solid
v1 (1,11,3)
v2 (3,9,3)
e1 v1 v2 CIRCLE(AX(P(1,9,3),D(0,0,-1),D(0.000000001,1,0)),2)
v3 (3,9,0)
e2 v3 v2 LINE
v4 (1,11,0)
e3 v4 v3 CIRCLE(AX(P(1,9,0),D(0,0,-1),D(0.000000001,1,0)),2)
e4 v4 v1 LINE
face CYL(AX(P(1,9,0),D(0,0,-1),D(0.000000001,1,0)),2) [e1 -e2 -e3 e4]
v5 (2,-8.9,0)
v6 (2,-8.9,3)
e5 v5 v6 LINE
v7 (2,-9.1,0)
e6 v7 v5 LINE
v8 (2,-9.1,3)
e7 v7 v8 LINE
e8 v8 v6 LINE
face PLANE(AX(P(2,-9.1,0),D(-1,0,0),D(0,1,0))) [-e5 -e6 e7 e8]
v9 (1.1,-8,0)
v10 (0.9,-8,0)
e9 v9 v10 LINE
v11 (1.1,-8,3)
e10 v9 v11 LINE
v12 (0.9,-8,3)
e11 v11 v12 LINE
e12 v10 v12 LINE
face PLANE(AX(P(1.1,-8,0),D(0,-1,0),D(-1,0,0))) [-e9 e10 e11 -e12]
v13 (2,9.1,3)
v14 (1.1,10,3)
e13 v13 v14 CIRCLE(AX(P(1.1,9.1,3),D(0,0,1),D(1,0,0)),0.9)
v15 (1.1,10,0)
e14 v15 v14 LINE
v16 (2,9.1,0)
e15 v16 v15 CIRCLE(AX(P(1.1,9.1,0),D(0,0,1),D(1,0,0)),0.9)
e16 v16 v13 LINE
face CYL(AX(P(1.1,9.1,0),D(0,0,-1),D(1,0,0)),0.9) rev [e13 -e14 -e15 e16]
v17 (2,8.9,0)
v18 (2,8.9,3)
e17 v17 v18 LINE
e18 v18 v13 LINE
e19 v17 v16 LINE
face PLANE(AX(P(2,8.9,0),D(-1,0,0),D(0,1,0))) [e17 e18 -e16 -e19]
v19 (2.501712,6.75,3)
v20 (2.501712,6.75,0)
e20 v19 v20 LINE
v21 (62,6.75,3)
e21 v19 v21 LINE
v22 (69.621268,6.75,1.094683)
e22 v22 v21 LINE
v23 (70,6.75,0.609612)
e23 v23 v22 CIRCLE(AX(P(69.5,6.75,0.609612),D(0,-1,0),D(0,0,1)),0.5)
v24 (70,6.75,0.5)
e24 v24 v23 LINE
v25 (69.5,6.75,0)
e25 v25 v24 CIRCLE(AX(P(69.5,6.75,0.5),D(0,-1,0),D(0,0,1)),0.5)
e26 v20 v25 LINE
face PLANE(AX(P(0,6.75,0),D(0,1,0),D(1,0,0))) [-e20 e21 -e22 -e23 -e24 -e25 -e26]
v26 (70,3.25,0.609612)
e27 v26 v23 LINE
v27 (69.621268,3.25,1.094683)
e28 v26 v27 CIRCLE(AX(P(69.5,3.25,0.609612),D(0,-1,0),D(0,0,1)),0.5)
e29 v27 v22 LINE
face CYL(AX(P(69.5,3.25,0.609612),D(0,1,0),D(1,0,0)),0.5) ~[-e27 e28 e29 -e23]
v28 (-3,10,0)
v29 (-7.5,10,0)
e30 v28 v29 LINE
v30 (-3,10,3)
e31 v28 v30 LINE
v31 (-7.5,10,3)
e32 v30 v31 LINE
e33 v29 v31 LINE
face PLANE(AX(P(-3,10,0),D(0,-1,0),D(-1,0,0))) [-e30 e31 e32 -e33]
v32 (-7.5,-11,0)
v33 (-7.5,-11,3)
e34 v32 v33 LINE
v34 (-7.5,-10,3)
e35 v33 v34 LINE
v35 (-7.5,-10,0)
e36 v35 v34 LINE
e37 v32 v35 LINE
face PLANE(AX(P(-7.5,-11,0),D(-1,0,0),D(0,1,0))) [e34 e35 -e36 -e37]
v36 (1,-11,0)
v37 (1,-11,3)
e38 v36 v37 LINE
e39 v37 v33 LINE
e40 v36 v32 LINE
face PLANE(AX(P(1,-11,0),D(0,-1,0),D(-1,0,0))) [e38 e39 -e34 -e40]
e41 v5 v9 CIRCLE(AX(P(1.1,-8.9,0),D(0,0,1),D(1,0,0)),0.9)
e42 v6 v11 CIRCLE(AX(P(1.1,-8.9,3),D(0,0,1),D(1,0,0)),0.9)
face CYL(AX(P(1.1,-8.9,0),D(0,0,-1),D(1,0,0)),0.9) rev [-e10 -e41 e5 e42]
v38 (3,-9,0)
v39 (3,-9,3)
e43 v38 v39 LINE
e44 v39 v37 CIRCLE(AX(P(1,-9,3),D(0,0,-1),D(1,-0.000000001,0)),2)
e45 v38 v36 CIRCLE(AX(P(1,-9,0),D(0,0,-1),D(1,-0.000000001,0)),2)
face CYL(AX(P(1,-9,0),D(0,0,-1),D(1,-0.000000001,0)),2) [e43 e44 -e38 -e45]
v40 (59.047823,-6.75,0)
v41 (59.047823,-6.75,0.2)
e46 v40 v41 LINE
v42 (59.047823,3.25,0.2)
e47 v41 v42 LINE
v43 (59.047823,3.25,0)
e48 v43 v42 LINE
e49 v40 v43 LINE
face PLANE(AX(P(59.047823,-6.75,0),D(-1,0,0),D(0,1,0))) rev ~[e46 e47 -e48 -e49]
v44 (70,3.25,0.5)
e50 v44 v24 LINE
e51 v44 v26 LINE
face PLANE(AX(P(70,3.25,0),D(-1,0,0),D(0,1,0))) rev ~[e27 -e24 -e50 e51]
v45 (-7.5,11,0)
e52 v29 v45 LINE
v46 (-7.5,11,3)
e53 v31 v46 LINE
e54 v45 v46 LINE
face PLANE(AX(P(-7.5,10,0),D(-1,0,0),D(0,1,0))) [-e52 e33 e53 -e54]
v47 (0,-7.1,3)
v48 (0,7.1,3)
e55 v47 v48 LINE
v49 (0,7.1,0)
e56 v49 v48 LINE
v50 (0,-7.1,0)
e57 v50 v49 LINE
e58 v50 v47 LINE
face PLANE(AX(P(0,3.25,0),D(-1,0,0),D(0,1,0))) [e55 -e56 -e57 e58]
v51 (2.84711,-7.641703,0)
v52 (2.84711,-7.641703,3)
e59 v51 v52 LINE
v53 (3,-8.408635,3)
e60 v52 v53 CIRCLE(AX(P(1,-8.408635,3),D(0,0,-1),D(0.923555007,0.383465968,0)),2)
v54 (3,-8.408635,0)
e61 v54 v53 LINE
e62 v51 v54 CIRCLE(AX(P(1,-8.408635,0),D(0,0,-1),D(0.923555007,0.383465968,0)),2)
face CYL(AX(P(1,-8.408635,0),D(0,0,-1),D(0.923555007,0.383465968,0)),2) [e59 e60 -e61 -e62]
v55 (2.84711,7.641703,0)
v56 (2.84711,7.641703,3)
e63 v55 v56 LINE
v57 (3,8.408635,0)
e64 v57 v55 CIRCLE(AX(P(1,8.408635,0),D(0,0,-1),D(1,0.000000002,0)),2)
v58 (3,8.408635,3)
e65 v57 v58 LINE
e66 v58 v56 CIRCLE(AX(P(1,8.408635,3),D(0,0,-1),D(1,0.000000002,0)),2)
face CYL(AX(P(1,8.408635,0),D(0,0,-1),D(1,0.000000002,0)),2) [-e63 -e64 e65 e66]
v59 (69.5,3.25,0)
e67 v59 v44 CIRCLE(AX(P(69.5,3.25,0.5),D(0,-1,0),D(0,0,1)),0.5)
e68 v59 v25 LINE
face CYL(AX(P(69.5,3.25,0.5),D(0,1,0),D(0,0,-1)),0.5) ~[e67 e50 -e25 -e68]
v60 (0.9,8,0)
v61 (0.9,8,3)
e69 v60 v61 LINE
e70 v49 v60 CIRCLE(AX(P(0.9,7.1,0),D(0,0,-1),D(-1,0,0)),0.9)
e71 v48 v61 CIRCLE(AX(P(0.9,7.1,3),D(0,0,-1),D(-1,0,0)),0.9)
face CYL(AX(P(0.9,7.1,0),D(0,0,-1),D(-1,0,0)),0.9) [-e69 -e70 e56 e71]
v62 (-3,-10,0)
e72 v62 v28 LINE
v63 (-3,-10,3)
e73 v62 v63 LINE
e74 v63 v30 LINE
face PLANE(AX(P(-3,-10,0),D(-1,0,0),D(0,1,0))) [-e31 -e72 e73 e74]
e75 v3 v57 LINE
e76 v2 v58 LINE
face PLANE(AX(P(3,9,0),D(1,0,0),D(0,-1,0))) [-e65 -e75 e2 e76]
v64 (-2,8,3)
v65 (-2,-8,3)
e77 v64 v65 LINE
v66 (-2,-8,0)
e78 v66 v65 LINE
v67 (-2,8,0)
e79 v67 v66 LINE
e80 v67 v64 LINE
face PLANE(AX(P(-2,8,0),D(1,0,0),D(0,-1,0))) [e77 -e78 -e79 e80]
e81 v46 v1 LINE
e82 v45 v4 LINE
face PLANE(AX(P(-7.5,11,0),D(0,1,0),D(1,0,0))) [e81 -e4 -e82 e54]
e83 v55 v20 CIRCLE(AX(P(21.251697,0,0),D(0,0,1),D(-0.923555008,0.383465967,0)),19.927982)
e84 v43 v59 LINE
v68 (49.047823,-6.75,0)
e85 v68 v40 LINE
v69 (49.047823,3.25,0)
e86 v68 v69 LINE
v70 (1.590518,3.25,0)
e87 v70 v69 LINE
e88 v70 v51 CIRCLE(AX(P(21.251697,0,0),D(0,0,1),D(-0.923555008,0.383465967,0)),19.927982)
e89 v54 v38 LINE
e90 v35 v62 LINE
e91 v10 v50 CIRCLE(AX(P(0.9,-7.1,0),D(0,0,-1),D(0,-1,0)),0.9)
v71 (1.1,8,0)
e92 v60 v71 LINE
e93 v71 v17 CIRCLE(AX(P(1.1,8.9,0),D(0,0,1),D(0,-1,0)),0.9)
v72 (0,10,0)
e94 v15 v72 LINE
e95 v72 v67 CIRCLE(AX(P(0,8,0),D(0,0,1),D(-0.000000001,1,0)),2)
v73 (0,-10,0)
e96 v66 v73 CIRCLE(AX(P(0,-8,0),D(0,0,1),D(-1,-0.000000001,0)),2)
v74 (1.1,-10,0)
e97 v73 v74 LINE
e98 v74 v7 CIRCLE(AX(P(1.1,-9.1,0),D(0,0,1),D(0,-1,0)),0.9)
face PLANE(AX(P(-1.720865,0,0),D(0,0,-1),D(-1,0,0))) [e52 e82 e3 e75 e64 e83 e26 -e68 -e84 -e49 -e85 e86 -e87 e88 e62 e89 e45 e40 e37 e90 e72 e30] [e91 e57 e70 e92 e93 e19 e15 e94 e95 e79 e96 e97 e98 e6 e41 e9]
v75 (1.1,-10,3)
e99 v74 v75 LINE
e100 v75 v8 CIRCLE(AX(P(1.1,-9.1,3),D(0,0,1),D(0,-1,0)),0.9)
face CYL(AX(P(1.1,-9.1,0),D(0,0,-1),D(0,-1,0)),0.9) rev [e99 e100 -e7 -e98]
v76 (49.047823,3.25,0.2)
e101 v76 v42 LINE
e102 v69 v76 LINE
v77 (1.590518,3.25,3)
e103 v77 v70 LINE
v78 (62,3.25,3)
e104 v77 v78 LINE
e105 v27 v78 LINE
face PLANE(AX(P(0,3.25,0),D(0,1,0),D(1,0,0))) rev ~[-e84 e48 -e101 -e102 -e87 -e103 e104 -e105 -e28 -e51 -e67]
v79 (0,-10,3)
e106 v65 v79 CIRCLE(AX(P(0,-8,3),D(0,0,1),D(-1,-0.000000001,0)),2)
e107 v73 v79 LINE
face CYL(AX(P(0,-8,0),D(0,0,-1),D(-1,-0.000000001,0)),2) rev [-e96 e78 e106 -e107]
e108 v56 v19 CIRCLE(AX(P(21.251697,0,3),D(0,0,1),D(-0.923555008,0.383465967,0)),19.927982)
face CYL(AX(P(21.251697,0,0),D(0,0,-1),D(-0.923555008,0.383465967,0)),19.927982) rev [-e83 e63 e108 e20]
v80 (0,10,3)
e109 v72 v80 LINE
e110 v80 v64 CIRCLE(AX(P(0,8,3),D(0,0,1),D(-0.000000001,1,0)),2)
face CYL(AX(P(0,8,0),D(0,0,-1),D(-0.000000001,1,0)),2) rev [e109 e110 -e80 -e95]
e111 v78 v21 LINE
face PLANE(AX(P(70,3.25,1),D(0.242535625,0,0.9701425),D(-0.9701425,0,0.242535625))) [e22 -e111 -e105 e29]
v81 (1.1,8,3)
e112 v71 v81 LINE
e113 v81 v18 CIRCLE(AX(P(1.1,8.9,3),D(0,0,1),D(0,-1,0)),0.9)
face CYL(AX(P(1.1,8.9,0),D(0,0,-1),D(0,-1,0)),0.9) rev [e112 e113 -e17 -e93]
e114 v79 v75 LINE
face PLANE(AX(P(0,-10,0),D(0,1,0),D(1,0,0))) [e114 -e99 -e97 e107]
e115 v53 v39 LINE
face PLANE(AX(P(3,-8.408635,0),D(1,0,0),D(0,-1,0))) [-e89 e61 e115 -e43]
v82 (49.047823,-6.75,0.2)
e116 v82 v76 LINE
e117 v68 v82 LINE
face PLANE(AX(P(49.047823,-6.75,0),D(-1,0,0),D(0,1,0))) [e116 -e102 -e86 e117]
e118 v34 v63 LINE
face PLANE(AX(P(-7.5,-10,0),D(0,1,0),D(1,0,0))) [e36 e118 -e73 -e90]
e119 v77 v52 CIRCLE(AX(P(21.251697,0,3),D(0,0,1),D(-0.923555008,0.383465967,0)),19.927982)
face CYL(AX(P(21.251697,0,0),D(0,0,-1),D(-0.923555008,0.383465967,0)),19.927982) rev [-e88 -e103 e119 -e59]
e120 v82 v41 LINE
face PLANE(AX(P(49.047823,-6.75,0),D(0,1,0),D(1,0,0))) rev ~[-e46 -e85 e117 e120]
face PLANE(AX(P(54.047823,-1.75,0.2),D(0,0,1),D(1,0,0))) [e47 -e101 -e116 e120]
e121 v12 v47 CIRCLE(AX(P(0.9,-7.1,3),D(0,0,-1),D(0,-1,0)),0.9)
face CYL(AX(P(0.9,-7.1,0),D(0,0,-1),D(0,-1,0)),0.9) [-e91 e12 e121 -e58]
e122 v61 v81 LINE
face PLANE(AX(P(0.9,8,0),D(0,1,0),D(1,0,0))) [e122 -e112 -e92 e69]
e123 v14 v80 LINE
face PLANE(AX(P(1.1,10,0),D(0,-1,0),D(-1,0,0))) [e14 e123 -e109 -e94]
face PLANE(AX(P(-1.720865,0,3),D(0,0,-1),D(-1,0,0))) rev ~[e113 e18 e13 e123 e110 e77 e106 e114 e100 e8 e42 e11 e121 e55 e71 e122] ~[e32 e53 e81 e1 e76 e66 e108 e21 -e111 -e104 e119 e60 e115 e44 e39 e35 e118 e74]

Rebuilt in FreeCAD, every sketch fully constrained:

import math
import FreeCAD as App
import Part
import Sketcher


def edges_at(feature, points):
    """Names of the edges that pass closest to the given points."""
    edges = feature.Shape.Edges
    near = lambda p: min(range(len(edges)), key=lambda i: edges[i].distToShape(Part.Vertex(*p))[0])
    return sorted({f"Edge{near(p) + 1}" for p in points})


def add_polygon(sketch, points):
    """Adds a closed chain of lines whose ends are joined by coincident constraints."""
    first, n = sketch.GeometryCount, len(points)
    for a, b in zip(points, points[1:] + points[:1]):
        sketch.addGeometry(Part.LineSegment(App.Vector(*a, 0), App.Vector(*b, 0)), False)
    for i in range(n):
        sketch.addConstraint(Sketcher.Constraint("Coincident", first + i, 2, first + (i + 1) % n, 1))

doc = App.newDocument("Part")
params = doc.addObject("Spreadsheet::Sheet", "Params")
for row, (alias, value) in enumerate([
    ("sketch1_radius", "2 mm"),
    ("sketch1_radius2", "0.9 mm"),
    ("sketch1_height", "1 mm"),
    ("sketch1_height2", "20 mm"),
    ("sketch1_width", "8.5 mm"),
    ("pad1_length", "3 mm"),
    ("sketch2_width", "70 mm"),
    ("sketch2_height", "3.5 mm"),
    ("pad2_length", "3 mm"),
    ("sketch3_width", "8 mm"),
    ("sketch3_height", "2 mm"),
    ("pocket1_length", "3.5 mm"),
    ("fillet_radius", "0.5 mm"),
    ("sketch4_width", "10 mm"),
    ("pad3_length", "0.2 mm"),
], start=1):
    params.set(f"A{row}", alias)
    params.set(f"B{row}", "=" + value)
    params.setAlias(f"B{row}", alias)

body = doc.addObject("PartDesign::Body", "Body")

# Sketch on XY plane
sketch1 = doc.addObject("Sketcher::SketchObject", "Sketch")
body.addObject(sketch1)
sketch1.AttachmentSupport = (doc.XY_Plane, [""])
sketch1.MapMode = "FlatFace"
sketch1.addGeometry([
    Part.LineSegment(App.Vector(-7.5, -11, 0), App.Vector(1, -11, 0)),  # 0
    Part.ArcOfCircle(Part.Circle(App.Vector(1, -9, 0), App.Vector(0, 0, 1), 2), math.radians(-90), math.radians(0)),  # 1
    Part.LineSegment(App.Vector(3, -9, 0), App.Vector(3, -8.41, 0)),  # 2
    Part.ArcOfCircle(Part.Circle(App.Vector(1, -8.41, 0), App.Vector(0, 0, 1), 2), math.radians(0), math.radians(23)),  # 3
    Part.ArcOfCircle(Part.Circle(App.Vector(21.25, 0, 0), App.Vector(0, 0, 1), 19.93), math.radians(157), math.radians(203)),  # 4
    Part.ArcOfCircle(Part.Circle(App.Vector(1, 8.41, 0), App.Vector(0, 0, 1), 2), math.radians(-23), math.radians(0)),  # 5
    Part.LineSegment(App.Vector(3, 8.41, 0), App.Vector(3, 9, 0)),  # 6
    Part.ArcOfCircle(Part.Circle(App.Vector(1, 9, 0), App.Vector(0, 0, 1), 2), math.radians(0), math.radians(90)),  # 7
    Part.LineSegment(App.Vector(1, 11, 0), App.Vector(-7.5, 11, 0)),  # 8
    Part.LineSegment(App.Vector(-7.5, 11, 0), App.Vector(-7.5, 10, 0)),  # 9
    Part.LineSegment(App.Vector(-7.5, 10, 0), App.Vector(-3, 10, 0)),  # 10
    Part.LineSegment(App.Vector(-3, 10, 0), App.Vector(-3, -10, 0)),  # 11
    Part.LineSegment(App.Vector(-3, -10, 0), App.Vector(-7.5, -10, 0)),  # 12
    Part.LineSegment(App.Vector(-7.5, -10, 0), App.Vector(-7.5, -11, 0)),  # 13
    Part.ArcOfCircle(Part.Circle(App.Vector(1.1, 8.9, 0), App.Vector(0, 0, 1), 0.9), math.radians(-90), math.radians(0)),  # 14
    Part.LineSegment(App.Vector(1.1, 8, 0), App.Vector(0.9, 8, 0)),  # 15
    Part.ArcOfCircle(Part.Circle(App.Vector(0.9, 7.1, 0), App.Vector(0, 0, 1), 0.9), math.radians(90), math.radians(180)),  # 16
    Part.LineSegment(App.Vector(0, 7.1, 0), App.Vector(0, -7.1, 0)),  # 17
    Part.ArcOfCircle(Part.Circle(App.Vector(0.9, -7.1, 0), App.Vector(0, 0, 1), 0.9), math.radians(180), math.radians(270)),  # 18
    Part.LineSegment(App.Vector(0.9, -8, 0), App.Vector(1.1, -8, 0)),  # 19
    Part.ArcOfCircle(Part.Circle(App.Vector(1.1, -8.9, 0), App.Vector(0, 0, 1), 0.9), math.radians(0), math.radians(90)),  # 20
    Part.LineSegment(App.Vector(2, -8.9, 0), App.Vector(2, -9.1, 0)),  # 21
    Part.ArcOfCircle(Part.Circle(App.Vector(1.1, -9.1, 0), App.Vector(0, 0, 1), 0.9), math.radians(-90), math.radians(0)),  # 22
    Part.LineSegment(App.Vector(1.1, -10, 0), App.Vector(0, -10, 0)),  # 23
    Part.ArcOfCircle(Part.Circle(App.Vector(0, -8, 0), App.Vector(0, 0, 1), 2), math.radians(-180), math.radians(-90)),  # 24
    Part.LineSegment(App.Vector(-2, -8, 0), App.Vector(-2, 8, 0)),  # 25
    Part.ArcOfCircle(Part.Circle(App.Vector(0, 8, 0), App.Vector(0, 0, 1), 2), math.radians(90), math.radians(180)),  # 26
    Part.LineSegment(App.Vector(0, 10, 0), App.Vector(1.1, 10, 0)),  # 27
    Part.ArcOfCircle(Part.Circle(App.Vector(1.1, 9.1, 0), App.Vector(0, 0, 1), 0.9), math.radians(0), math.radians(90)),  # 28
    Part.LineSegment(App.Vector(2, 9.1, 0), App.Vector(2, 8.9, 0)),  # 29
], False)
sketch1.addConstraint([
    Sketcher.Constraint("Tangent", 0, 2, 1, 1),
    Sketcher.Constraint("Tangent", 1, 2, 2, 1),
    Sketcher.Constraint("Tangent", 2, 2, 3, 1),
    Sketcher.Constraint("Tangent", 3, 2, 4, 2),
    Sketcher.Constraint("Tangent", 4, 1, 5, 1),
    Sketcher.Constraint("Tangent", 5, 2, 6, 1),
    Sketcher.Constraint("Tangent", 6, 2, 7, 1),
    Sketcher.Constraint("Tangent", 7, 2, 8, 1),
    Sketcher.Constraint("Coincident", 8, 2, 9, 1),
    Sketcher.Constraint("Coincident", 9, 2, 10, 1),
    Sketcher.Constraint("Coincident", 10, 2, 11, 1),
    Sketcher.Constraint("Coincident", 11, 2, 12, 1),
    Sketcher.Constraint("Coincident", 12, 2, 13, 1),
    Sketcher.Constraint("Coincident", 13, 2, 0, 1),
    Sketcher.Constraint("Tangent", 14, 1, 15, 1),
    Sketcher.Constraint("Tangent", 15, 2, 16, 1),
    Sketcher.Constraint("Tangent", 16, 2, 17, 1),
    Sketcher.Constraint("Tangent", 17, 2, 18, 1),
    Sketcher.Constraint("Tangent", 18, 2, 19, 1),
    Sketcher.Constraint("Tangent", 19, 2, 20, 2),
    Sketcher.Constraint("Tangent", 20, 1, 21, 1),
    Sketcher.Constraint("Tangent", 21, 2, 22, 2),
    Sketcher.Constraint("Tangent", 22, 1, 23, 1),
    Sketcher.Constraint("Tangent", 23, 2, 24, 2),
    Sketcher.Constraint("Tangent", 24, 1, 25, 1),
    Sketcher.Constraint("Tangent", 25, 2, 26, 2),
    Sketcher.Constraint("Tangent", 26, 1, 27, 1),
    Sketcher.Constraint("Tangent", 27, 2, 28, 2),
    Sketcher.Constraint("Tangent", 28, 1, 29, 1),
    Sketcher.Constraint("Tangent", 29, 2, 14, 2),
    Sketcher.Constraint("Horizontal", 0),
    Sketcher.Constraint("Vertical", 2),
    Sketcher.Constraint("Vertical", 6),
    Sketcher.Constraint("Horizontal", 8),
    Sketcher.Constraint("Vertical", 9),
    Sketcher.Constraint("Horizontal", 10),
    Sketcher.Constraint("Vertical", 11),
    Sketcher.Constraint("Horizontal", 12),
    Sketcher.Constraint("Vertical", 13),
    Sketcher.Constraint("Horizontal", 15),
    Sketcher.Constraint("Vertical", 17),
    Sketcher.Constraint("Horizontal", 19),
    Sketcher.Constraint("Vertical", 21),
    Sketcher.Constraint("Horizontal", 23),
    Sketcher.Constraint("Vertical", 25),
    Sketcher.Constraint("Horizontal", 27),
    Sketcher.Constraint("Vertical", 29),
    Sketcher.Constraint("Equal", 1, 3),
    Sketcher.Constraint("Equal", 3, 5),
    Sketcher.Constraint("Equal", 5, 7),
    Sketcher.Constraint("Equal", 14, 16),
    Sketcher.Constraint("Equal", 16, 18),
    Sketcher.Constraint("Equal", 18, 20),
    Sketcher.Constraint("Equal", 20, 22),
    Sketcher.Constraint("Equal", 7, 24),
    Sketcher.Constraint("Equal", 24, 26),
    Sketcher.Constraint("Equal", 22, 28),
    Sketcher.Constraint("Symmetric", 24, 3, 26, 3, -1, 1),
    Sketcher.Constraint("Symmetric", 16, 2, 17, 2, -1, 1),
    Sketcher.Constraint("Symmetric", 3, 3, 5, 3, -1),
    Sketcher.Constraint("Symmetric", 9, 2, 12, 2, -1),
    Sketcher.Constraint("Horizontal", 26, 3, 14, 1),
    Sketcher.Constraint("Horizontal", 12, 2, 22, 1),
    Sketcher.Constraint("Vertical", 14, 3, 20, 3),
    Sketcher.Constraint("Equal", 2, 6),
    Sketcher.Constraint("Equal", 19, 21),
    Sketcher.Constraint("Radius", 1, 2.0),
    Sketcher.Constraint("Radius", 14, 0.9),
    Sketcher.Constraint("DistanceY", 9, 2, 9, 1, 1.0),
    Sketcher.Constraint("DistanceY", 11, 2, 11, 1, 20.0),
    Sketcher.Constraint("DistanceX", 0, 1, 0, 2, 8.5),
    Sketcher.Constraint("DistanceX", 10, 1, 10, 2, 4.5),
    Sketcher.Constraint("DistanceX", -1, 1, 1, 3, 1.0),
    Sketcher.Constraint("Radius", 4, 19.927982),
    Sketcher.Constraint("DistanceY", 2, 1, 2, 2, 0.591365),
])
sketch1.setExpression("Constraints[66]", "Params.sketch1_radius")
sketch1.setExpression("Constraints[67]", "Params.sketch1_radius2")
sketch1.setExpression("Constraints[68]", "Params.sketch1_height")
sketch1.setExpression("Constraints[69]", "Params.sketch1_height2")
sketch1.setExpression("Constraints[70]", "Params.sketch1_width")
pad1 = doc.addObject("PartDesign::Pad", "Pad")
body.addObject(pad1)
pad1.Profile = sketch1
pad1.setExpression("Length", "Params.pad1_length")

# Sketch on XY plane
sketch2 = doc.addObject("Sketcher::SketchObject", "Sketch001")
body.addObject(sketch2)
sketch2.AttachmentSupport = (doc.XY_Plane, [""])
sketch2.MapMode = "FlatFace"
add_polygon(sketch2, [(0, 6.8), (0, 3.2), (70, 3.2), (70, 6.8)])  # lines 0-3
sketch2.addConstraint([
    Sketcher.Constraint("Vertical", 0),
    Sketcher.Constraint("Horizontal", 1),
    Sketcher.Constraint("Vertical", 2),
    Sketcher.Constraint("Horizontal", 3),
    Sketcher.Constraint("PointOnObject", 0, 2, -2),
    Sketcher.Constraint("DistanceX", 1, 1, 1, 2, 70.0),
    Sketcher.Constraint("DistanceY", 0, 2, 0, 1, 3.5),
    Sketcher.Constraint("DistanceY", -1, 1, 0, 2, 3.25),
])
sketch2.setExpression("Constraints[9]", "Params.sketch2_width")
sketch2.setExpression("Constraints[10]", "Params.sketch2_height")
pad2 = doc.addObject("PartDesign::Pad", "Pad001")
body.addObject(pad2)
pad2.Profile = sketch2
pad2.setExpression("Length", "Params.pad2_length")

# Sketch on XZ plane
sketch3 = doc.addObject("Sketcher::SketchObject", "Sketch002")
body.addObject(sketch3)
sketch3.AttachmentSupport = (doc.XZ_Plane, [""])
sketch3.MapMode = "FlatFace"
sketch3.AttachmentOffset = App.Placement(App.Vector(0, 0, -3.25), App.Rotation())
add_polygon(sketch3, [(70, 3), (62, 3), (70, 1)])  # lines 0-2
sketch3.addConstraint([
    Sketcher.Constraint("Horizontal", 0),
    Sketcher.Constraint("Vertical", 2),
    Sketcher.Constraint("DistanceX", 0, 2, 0, 1, 8.0),
    Sketcher.Constraint("DistanceY", 2, 1, 2, 2, 2.0),
    Sketcher.Constraint("DistanceX", -1, 1, 0, 2, 62.0),
    Sketcher.Constraint("DistanceY", -1, 1, 0, 2, 3.0),
])
sketch3.setExpression("Constraints[5]", "Params.sketch3_width")
sketch3.setExpression("Constraints[6]", "Params.sketch3_height")
pocket1 = doc.addObject("PartDesign::Pocket", "Pocket")
body.addObject(pocket1)
pocket1.Profile = sketch3
pocket1.setExpression("Length", "Params.pocket1_length")
doc.recompute()

fillet = doc.addObject("PartDesign::Fillet", "Fillet")
body.addObject(fillet)
fillet.Base = (pocket1, edges_at(pocket1, [(70, 5, 0), (70, 5, 1)]))
fillet.setExpression("Radius", "Params.fillet_radius")

# Sketch on XY plane
sketch4 = doc.addObject("Sketcher::SketchObject", "Sketch003")
body.addObject(sketch4)
sketch4.AttachmentSupport = (doc.XY_Plane, [""])
sketch4.MapMode = "FlatFace"
add_polygon(sketch4, [(49, 3), (49, -7), (59, -7), (59, 3)])  # lines 0-3
sketch4.addConstraint([
    Sketcher.Constraint("Vertical", 0),
    Sketcher.Constraint("Horizontal", 1),
    Sketcher.Constraint("Vertical", 2),
    Sketcher.Constraint("Horizontal", 3),
    Sketcher.Constraint("Equal", 3, 0),
    Sketcher.Constraint("DistanceX", 1, 1, 1, 2, 10.0),
    Sketcher.Constraint("DistanceY", 0, 2, -1, 1, 6.75),
    Sketcher.Constraint("DistanceX", -1, 1, 0, 2, 49.047823),
])
sketch4.setExpression("Constraints[9]", "Params.sketch4_width")
pad3 = doc.addObject("PartDesign::Pad", "Pad002")
body.addObject(pad3)
pad3.Profile = sketch4
pad3.setExpression("Length", "Params.pad3_length")

doc.recompute()
